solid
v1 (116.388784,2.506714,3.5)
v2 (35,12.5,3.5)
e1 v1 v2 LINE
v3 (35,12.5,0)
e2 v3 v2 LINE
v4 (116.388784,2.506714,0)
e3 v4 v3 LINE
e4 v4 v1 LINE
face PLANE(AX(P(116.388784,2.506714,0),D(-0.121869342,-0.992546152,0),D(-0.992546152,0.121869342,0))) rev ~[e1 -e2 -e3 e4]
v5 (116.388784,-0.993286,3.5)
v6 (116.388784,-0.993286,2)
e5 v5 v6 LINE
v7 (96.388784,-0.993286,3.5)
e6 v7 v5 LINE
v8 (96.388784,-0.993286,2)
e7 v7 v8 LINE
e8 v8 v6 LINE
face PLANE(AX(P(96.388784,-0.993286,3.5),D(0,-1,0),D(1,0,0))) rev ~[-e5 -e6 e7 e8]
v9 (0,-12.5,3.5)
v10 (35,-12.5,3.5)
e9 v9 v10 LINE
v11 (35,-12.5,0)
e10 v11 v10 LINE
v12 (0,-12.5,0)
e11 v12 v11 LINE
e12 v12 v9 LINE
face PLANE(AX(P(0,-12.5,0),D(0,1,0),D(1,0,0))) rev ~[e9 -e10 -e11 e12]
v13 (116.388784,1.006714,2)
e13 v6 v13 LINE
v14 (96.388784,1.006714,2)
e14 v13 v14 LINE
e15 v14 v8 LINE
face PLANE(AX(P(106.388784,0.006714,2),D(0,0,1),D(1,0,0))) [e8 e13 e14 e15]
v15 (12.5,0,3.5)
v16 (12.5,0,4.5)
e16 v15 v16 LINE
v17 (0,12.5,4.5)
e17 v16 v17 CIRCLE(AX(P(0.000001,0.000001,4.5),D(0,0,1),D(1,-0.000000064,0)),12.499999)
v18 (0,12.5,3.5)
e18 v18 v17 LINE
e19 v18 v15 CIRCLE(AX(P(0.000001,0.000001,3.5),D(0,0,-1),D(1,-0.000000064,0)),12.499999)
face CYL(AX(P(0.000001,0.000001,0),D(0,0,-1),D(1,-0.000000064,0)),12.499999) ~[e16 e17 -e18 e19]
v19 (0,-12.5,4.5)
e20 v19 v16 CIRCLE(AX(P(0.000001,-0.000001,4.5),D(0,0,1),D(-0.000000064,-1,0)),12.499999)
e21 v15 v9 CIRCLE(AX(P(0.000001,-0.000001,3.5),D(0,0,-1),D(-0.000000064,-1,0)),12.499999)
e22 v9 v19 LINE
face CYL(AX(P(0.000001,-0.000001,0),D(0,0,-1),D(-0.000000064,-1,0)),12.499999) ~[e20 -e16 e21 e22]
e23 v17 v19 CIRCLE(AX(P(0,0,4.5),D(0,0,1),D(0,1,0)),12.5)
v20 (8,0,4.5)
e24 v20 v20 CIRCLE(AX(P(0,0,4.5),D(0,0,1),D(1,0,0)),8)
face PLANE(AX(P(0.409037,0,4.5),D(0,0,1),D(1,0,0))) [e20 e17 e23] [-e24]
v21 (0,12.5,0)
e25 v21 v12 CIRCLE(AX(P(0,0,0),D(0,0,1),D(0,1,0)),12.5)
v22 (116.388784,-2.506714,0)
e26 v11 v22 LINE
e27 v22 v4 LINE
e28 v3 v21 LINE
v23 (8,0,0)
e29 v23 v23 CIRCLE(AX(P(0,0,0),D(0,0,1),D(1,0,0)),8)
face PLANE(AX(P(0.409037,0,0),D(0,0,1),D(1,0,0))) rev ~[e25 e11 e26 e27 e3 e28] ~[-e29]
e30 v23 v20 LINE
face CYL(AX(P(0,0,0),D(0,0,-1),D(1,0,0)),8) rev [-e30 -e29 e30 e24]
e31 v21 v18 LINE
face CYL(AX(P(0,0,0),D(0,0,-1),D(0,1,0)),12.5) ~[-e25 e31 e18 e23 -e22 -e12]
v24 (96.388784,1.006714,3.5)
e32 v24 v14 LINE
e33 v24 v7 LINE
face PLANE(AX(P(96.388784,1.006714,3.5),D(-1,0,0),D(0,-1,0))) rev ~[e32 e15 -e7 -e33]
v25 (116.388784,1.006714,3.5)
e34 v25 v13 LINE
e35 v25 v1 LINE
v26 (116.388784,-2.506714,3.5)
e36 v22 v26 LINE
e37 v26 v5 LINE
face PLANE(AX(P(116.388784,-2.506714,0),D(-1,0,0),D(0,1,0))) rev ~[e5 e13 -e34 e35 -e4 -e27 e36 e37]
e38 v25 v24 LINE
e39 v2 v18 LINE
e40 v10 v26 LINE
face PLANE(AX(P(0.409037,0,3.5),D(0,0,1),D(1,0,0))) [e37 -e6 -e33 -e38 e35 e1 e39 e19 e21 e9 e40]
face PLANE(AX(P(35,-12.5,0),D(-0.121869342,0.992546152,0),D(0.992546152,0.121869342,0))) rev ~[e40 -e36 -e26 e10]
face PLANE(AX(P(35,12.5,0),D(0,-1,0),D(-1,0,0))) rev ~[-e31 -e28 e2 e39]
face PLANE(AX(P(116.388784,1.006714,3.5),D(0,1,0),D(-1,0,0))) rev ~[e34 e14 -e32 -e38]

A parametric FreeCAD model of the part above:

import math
import FreeCAD as App
import Part
import Sketcher
from FreeCAD import Vector
Q = App.Units.Quantity


def add_polygon(sketch, points):
    """Adds a closed chain of lines whose ends are joined by coincident constraints."""
    first, n = sketch.GeometryCount, len(points)
    for a, b in zip(points, points[1:] + points[:1]):
        sketch.addGeometry(Part.LineSegment(App.Vector(*a, 0), App.Vector(*b, 0)), False)
    for i in range(n):
        sketch.addConstraint(Sketcher.Constraint("Coincident", first + i, 2, first + (i + 1) % n, 1))

doc = App.newDocument("Part")
body = doc.addObject("PartDesign::Body", "Body")

# Sketch on XY plane
sketch1 = doc.addObject("Sketcher::SketchObject", "Sketch")
body.addObject(sketch1)
sketch1.AttachmentSupport = (doc.XY_Plane, [""])
sketch1.MapMode = "FlatFace"
sketch1.addGeometry([
    Part.ArcOfCircle(Part.Circle(Vector(0, 0, 0), Vector(0, 0, 1), 12.5), math.radians(90), math.radians(270)),  # 0
    Part.LineSegment(Vector(0, -12.5, 0), Vector(35, -12.5, 0)),  # 1
    Part.LineSegment(Vector(35, -12.5, 0), Vector(116.388784, -2.506714, 0)),  # 2
    Part.LineSegment(Vector(116.388784, -2.506714, 0), Vector(116.388784, 2.506714, 0)),  # 3
    Part.LineSegment(Vector(116.388784, 2.506714, 0), Vector(35, 12.5, 0)),  # 4
    Part.LineSegment(Vector(35, 12.5, 0), Vector(0, 12.5, 0)),  # 5
    Part.Circle(Vector(0, 0, 0), Vector(0, 0, 1), 8),  # 6
], False)
sketch1.addConstraint([
    Sketcher.Constraint("Tangent", 0, 2, 1, 1),
    Sketcher.Constraint("Coincident", 1, 2, 2, 1),
    Sketcher.Constraint("Coincident", 2, 2, 3, 1),
    Sketcher.Constraint("Coincident", 3, 2, 4, 1),
    Sketcher.Constraint("Coincident", 4, 2, 5, 1),
    Sketcher.Constraint("Tangent", 5, 2, 0, 1),
    Sketcher.Constraint("Horizontal", 1),
    Sketcher.Constraint("Vertical", 3),
    Sketcher.Constraint("Horizontal", 5),
    Sketcher.Constraint("Coincident", 0, 3, -1, 1),
    Sketcher.Constraint("Coincident", 6, 3, -1, 1),
    Sketcher.Constraint("Vertical", 1, 2, 4, 2),
    Sketcher.Constraint("Equal", 2, 4),
    Sketcher.Constraint("Diameter", 6, 16.0),
    Sketcher.Constraint("Radius", 0, 12.5),
    Sketcher.Constraint("DistanceX", 1, 1, 1, 2, 35.0),
    Sketcher.Constraint("Angle", 2, Q("7 deg")),
    Sketcher.Constraint("Distance", 2, 82.0),
])
pad1 = doc.addObject("PartDesign::Pad", "Pad")
body.addObject(pad1)
pad1.Profile = sketch1
pad1.Length = 3.5

# Sketch on XY plane
sketch2 = doc.addObject("Sketcher::SketchObject", "Sketch001")
body.addObject(sketch2)
sketch2.AttachmentSupport = (doc.XY_Plane, [""])
sketch2.MapMode = "FlatFace"
sketch2.addGeometry([
    Part.ArcOfCircle(Part.Circle(Vector(0.000001, -0.000001, 0), Vector(0, 0, 1), 12.499999), math.radians(-90.000004), math.radians(0.000004)),
    Part.ArcOfCircle(Part.Circle(Vector(0.000001, 0.000001, 0), Vector(0, 0, 1), 12.499999), math.radians(-0.000004), math.radians(90.000004)),
    Part.ArcOfCircle(Part.Circle(Vector(0, 0, 0), Vector(0, 0, 1), 12.5), math.radians(90), math.radians(270)),
    Part.Circle(Vector(0, 0, 0), Vector(0, 0, 1), 8),
], False)
sketch2.addConstraint([
    Sketcher.Constraint("Tangent", 0, 2, 1, 1),
    Sketcher.Constraint("Tangent", 1, 2, 2, 1),
    Sketcher.Constraint("Tangent", 2, 2, 0, 1),
    Sketcher.Constraint("Coincident", 0, 3, -1, 1),
    Sketcher.Constraint("Coincident", 3, 3, -1, 1),
    Sketcher.Constraint("PointOnObject", 0, 2, -1),
    Sketcher.Constraint("PointOnObject", 1, 2, -2),
    Sketcher.Constraint("PointOnObject", 2, 2, -2),
    Sketcher.Constraint("Diameter", 3, 16.0),
    Sketcher.Constraint("Radius", 0, 12.499999),
])
pad2 = doc.addObject("PartDesign::Pad", "Pad001")
body.addObject(pad2)
pad2.Profile = sketch2
pad2.Length = 4.5

# Sketch on XY plane
sketch3 = doc.addObject("Sketcher::SketchObject", "Sketch002")
body.addObject(sketch3)
sketch3.AttachmentSupport = (doc.XY_Plane, [""])
sketch3.MapMode = "FlatFace"
sketch3.AttachmentOffset = App.Placement(Vector(0, 0, 3.5), App.Rotation())
add_polygon(sketch3, [(116.388784, 1.006714), (96.388784, 1.006714), (96.388784, -0.993286), (116.388784, -0.993286)])  # lines 0-3
sketch3.addConstraint([
    Sketcher.Constraint("Horizontal", 0),
    Sketcher.Constraint("Vertical", 1),
    Sketcher.Constraint("Horizontal", 2),
    Sketcher.Constraint("Vertical", 3),
    Sketcher.Constraint("DistanceX", 0, 2, 0, 1, 20.0),
    Sketcher.Constraint("DistanceY", 1, 2, 1, 1, 2.0),
    Sketcher.Constraint("DistanceX", -1, 1, 0, 2, 96.388784),
    Sketcher.Constraint("DistanceY", -1, 1, 0, 2, 1.006714),
])
pocket1 = doc.addObject("PartDesign::Pocket", "Pocket")
body.addObject(pocket1)
pocket1.Profile = sketch3
pocket1.Length = 1.5

doc.recompute()
